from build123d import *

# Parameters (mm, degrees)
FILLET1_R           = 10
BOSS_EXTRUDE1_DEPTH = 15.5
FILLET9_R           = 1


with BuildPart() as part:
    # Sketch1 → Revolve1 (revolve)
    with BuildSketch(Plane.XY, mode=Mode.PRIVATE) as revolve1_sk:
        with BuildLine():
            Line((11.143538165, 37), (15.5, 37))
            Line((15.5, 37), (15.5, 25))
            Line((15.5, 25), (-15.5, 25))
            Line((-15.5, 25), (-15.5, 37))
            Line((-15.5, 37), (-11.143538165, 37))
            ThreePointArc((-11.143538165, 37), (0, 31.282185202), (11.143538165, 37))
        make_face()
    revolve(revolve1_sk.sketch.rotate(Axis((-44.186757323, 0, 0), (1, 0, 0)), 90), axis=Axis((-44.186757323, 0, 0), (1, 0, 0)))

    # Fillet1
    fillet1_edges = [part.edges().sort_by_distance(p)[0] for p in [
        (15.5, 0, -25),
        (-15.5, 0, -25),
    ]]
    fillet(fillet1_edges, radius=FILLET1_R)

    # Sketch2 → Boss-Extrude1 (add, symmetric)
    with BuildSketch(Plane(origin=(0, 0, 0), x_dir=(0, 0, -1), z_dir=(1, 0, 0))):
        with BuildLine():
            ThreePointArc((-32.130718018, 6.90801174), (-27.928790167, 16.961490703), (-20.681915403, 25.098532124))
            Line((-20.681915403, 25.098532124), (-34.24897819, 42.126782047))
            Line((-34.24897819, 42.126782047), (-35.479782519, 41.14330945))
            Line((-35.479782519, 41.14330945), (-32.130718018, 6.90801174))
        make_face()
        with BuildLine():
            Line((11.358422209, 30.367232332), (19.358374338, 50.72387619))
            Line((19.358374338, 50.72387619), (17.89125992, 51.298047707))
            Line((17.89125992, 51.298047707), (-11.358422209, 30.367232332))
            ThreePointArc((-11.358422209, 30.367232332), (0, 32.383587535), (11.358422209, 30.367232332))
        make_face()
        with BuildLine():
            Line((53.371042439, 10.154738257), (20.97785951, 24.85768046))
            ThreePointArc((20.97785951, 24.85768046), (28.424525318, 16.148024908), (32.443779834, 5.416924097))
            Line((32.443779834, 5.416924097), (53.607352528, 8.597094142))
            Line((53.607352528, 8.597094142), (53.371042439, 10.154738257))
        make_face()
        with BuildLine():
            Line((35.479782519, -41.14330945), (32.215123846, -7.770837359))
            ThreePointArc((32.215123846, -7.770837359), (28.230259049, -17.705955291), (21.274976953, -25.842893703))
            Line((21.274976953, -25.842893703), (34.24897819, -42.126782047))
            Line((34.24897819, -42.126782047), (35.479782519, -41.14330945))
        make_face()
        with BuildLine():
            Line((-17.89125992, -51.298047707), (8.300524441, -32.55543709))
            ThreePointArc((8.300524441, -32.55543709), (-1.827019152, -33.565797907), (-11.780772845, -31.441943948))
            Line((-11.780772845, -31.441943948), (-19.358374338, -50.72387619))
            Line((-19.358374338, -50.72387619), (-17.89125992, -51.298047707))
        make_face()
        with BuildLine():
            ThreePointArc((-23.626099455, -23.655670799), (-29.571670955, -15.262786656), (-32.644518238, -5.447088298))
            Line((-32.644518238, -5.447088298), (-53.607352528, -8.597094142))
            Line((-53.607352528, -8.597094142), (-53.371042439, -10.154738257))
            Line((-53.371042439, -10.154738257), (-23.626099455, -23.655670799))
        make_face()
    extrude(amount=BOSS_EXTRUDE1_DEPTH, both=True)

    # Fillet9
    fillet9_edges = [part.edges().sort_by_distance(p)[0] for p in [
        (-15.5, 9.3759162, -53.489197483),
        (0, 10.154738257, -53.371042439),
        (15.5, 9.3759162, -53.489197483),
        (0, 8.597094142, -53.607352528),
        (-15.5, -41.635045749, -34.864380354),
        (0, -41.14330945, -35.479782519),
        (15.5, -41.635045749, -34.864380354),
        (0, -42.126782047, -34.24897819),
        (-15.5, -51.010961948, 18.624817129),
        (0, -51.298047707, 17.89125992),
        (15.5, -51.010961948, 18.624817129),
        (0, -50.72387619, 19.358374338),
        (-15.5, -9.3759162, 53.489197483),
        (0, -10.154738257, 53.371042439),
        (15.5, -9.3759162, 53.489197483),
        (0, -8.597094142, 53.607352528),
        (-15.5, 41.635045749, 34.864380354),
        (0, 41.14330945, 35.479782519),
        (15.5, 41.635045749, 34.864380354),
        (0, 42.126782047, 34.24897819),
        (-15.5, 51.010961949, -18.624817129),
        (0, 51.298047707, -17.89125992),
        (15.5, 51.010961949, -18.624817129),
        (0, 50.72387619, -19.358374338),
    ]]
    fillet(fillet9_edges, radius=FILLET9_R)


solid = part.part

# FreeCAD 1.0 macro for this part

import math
import FreeCAD as App
import Part
import Sketcher
Q = App.Units.Quantity


def edges_at(feature, points):
    """Names of the edges that pass closest to the given points."""
    edges = feature.Shape.Edges
    near = lambda p: min(range(len(edges)), key=lambda i: edges[i].distToShape(Part.Vertex(*p))[0])
    return sorted({f"Edge{near(p) + 1}" for p in points})

doc = App.newDocument("Part")
params = doc.addObject("Spreadsheet::Sheet", "Params")
for row, (alias, value) in enumerate([
    ("sketch1_width", "31 mm"),
    ("sketch1_height", "12 mm"),
    ("revolution_angle", "360 deg"),
    ("fillet_radius", "10 mm"),
    ("sketch2_radius", "33 mm"),
    ("sketch2_radius2", "33 mm"),
    ("sketch2_radius3", "33 mm"),
    ("sketch2_radius4", "33 mm"),
    ("sketch2_radius5", "33 mm"),
    ("pad1_length", "31 mm"),
    ("fillet2_radius", "1 mm"),
], start=1):
    params.set(f"A{row}", alias)
    params.set(f"B{row}", "=" + value)
    params.setAlias(f"B{row}", alias)

body = doc.addObject("PartDesign::Body", "Body")

sketch1 = body.newObject("Sketcher::SketchObject", "Sketch")
sketch1.AttachmentSupport = (doc.getObject("XY_Plane"), [""])
sketch1.MapMode = "FlatFace"
sketch1.addGeometry([
    Part.LineSegment(App.Vector(15.5, 37, 0), App.Vector(11.1, 37, 0)),
    Part.ArcOfCircle(Part.Circle(App.Vector(0, 45, 0), App.Vector(0, 0, 1), 13.7), math.radians(-144), math.radians(-36)),
    Part.LineSegment(App.Vector(-11.1, 37, 0), App.Vector(-15.5, 37, 0)),
    Part.LineSegment(App.Vector(-15.5, 37, 0), App.Vector(-15.5, 25, 0)),
    Part.LineSegment(App.Vector(-15.5, 25, 0), App.Vector(15.5, 25, 0)),
    Part.LineSegment(App.Vector(15.5, 25, 0), App.Vector(15.5, 37, 0)),
], False)
sketch1.addConstraint([
    Sketcher.Constraint("Coincident", 0, 2, 1, 2),
    Sketcher.Constraint("Coincident", 1, 1, 2, 1),
    Sketcher.Constraint("Coincident", 2, 2, 3, 1),
    Sketcher.Constraint("Coincident", 3, 2, 4, 1),
    Sketcher.Constraint("Coincident", 4, 2, 5, 1),
    Sketcher.Constraint("Coincident", 5, 2, 0, 1),
    Sketcher.Constraint("Horizontal", 0),
    Sketcher.Constraint("Horizontal", 2),
    Sketcher.Constraint("Vertical", 3),
    Sketcher.Constraint("Horizontal", 4),
    Sketcher.Constraint("Vertical", 5),
    Sketcher.Constraint("Symmetric", 0, 2, 1, 1, -2),
    Sketcher.Constraint("Equal", 0, 2),
    Sketcher.Constraint("DistanceX", 4, 1, 4, 2, Q("31 mm")),
    Sketcher.Constraint("DistanceY", 3, 2, 3, 1, Q("12 mm")),
    Sketcher.Constraint("DistanceY", -1, 1, 1, 3, Q("45 mm")),
    Sketcher.Constraint("DistanceY", -1, 1, 0, 2, Q("37 mm")),
    Sketcher.Constraint("Radius", 1, Q("13.717815 mm")),
])
sketch1.setExpression("Constraints[13]", "Params.sketch1_width")
sketch1.setExpression("Constraints[14]", "Params.sketch1_height")
revolution = body.newObject("PartDesign::Revolution", "Revolution")
revolution.Profile = sketch1
revolution.ReferenceAxis = (sketch1, ["H_Axis"])
revolution.setExpression("Angle", "Params.revolution_angle")
doc.recompute()

fillet = body.newObject("PartDesign::Fillet", "Fillet")
fillet.Base = (revolution, edges_at(revolution, [(15.5, 0, -25), (-15.5, 0, -25)]))
fillet.setExpression("Radius", "Params.fillet_radius")

sketch2 = body.newObject("Sketcher::SketchObject", "Sketch001")
sketch2.AttachmentSupport = (doc.getObject("YZ_Plane"), [""])
sketch2.MapMode = "FlatFace"
sketch2.addGeometry([
    Part.ArcOfCircle(Part.Circle(App.Vector(-0.616412, 0, 0), App.Vector(0, 0, 1), 33), math.radians(38.808889), math.radians(76.819892)),
    Part.LineSegment(App.Vector(25.098532, 20.681915, 0), App.Vector(42.126782, 34.248978, 0)),
    Part.LineSegment(App.Vector(42.126782, 34.248978, 0), App.Vector(41.143309, 35.479783, 0)),
    Part.LineSegment(App.Vector(41.143309, 35.479783, 0), App.Vector(6.908012, 32.130718, 0)),
    Part.LineSegment(App.Vector(30.367232, -11.358422, 0), App.Vector(50.723876, -19.358374, 0)),
    Part.LineSegment(App.Vector(50.723876, -19.358374, 0), App.Vector(51.298048, -17.89126, 0)),
    Part.LineSegment(App.Vector(51.298048, -17.89126, 0), App.Vector(30.367232, 11.358422, 0)),
    Part.ArcOfCircle(Part.Circle(App.Vector(-0.616412, 0, 0), App.Vector(0, 0, 1), 33), math.radians(-20.13264), math.radians(20.13264)),
    Part.LineSegment(App.Vector(10.154738, -53.371042, 0), App.Vector(24.85768, -20.97786, 0)),
    Part.ArcOfCircle(Part.Circle(App.Vector(-0.616412, 0, 0), App.Vector(0, 0, 1), 33), math.radians(-79.465451), math.radians(-39.471381)),
    Part.LineSegment(App.Vector(5.416924, -32.44378, 0), App.Vector(8.597094, -53.607353, 0)),
    Part.LineSegment(App.Vector(8.597094, -53.607353, 0), App.Vector(10.154738, -53.371042, 0)),
    Part.LineSegment(App.Vector(-41.143309, -35.479783, 0), App.Vector(-7.770837, -32.215124, 0)),
    Part.ArcOfCircle(Part.Circle(App.Vector(-0.616412, 0, 0), App.Vector(0, 0, 1), 33), math.radians(-139.857093), math.radians(-102.521195)),
    Part.LineSegment(App.Vector(-25.842894, -21.274977, 0), App.Vector(-42.126782, -34.248978, 0)),
    Part.LineSegment(App.Vector(-42.126782, -34.248978, 0), App.Vector(-41.143309, -35.479783, 0)),
    Part.LineSegment(App.Vector(-51.298048, 17.89126, 0), App.Vector(-32.555437, -8.300524, 0)),
    Part.ArcOfCircle(Part.Circle(App.Vector(-0.616412, 0, 0), App.Vector(0, 0, 1), 33), math.radians(159.084353), math.radians(194.56813)),
    Part.LineSegment(App.Vector(-31.441944, 11.780773, 0), App.Vector(-50.723876, 19.358374, 0)),
    Part.LineSegment(App.Vector(-50.723876, 19.358374, 0), App.Vector(-51.298048, 17.89126, 0)),
    Part.ArcOfCircle(Part.Circle(App.Vector(-0.616412, 0, 0), App.Vector(0, 0, 1), 33), math.radians(98.417439), math.radians(134.279514)),
    Part.LineSegment(App.Vector(-5.447088, 32.644518, 0), App.Vector(-8.597094, 53.607353, 0)),
    Part.LineSegment(App.Vector(-8.597094, 53.607353, 0), App.Vector(-10.154738, 53.371042, 0)),
    Part.LineSegment(App.Vector(-10.154738, 53.371042, 0), App.Vector(-23.655671, 23.626099, 0)),
], False)
sketch2.addConstraint([
    Sketcher.Constraint("Coincident", 0, 1, 1, 1),
    Sketcher.Constraint("Coincident", 1, 2, 2, 1),
    Sketcher.Constraint("Coincident", 2, 2, 3, 1),
    Sketcher.Constraint("Coincident", 3, 2, 0, 2),
    Sketcher.Constraint("Coincident", 4, 2, 5, 1),
    Sketcher.Constraint("Coincident", 5, 2, 6, 1),
    Sketcher.Constraint("Coincident", 6, 2, 7, 2),
    Sketcher.Constraint("Coincident", 7, 1, 4, 1),
    Sketcher.Constraint("Coincident", 8, 2, 9, 2),
    Sketcher.Constraint("Coincident", 9, 1, 10, 1),
    Sketcher.Constraint("Coincident", 10, 2, 11, 1),
    Sketcher.Constraint("Coincident", 11, 2, 8, 1),
    Sketcher.Constraint("Coincident", 12, 2, 13, 2),
    Sketcher.Constraint("Coincident", 13, 1, 14, 1),
    Sketcher.Constraint("Coincident", 14, 2, 15, 1),
    Sketcher.Constraint("Coincident", 15, 2, 12, 1),
    Sketcher.Constraint("Coincident", 16, 2, 17, 2),
    Sketcher.Constraint("Coincident", 17, 1, 18, 1),
    Sketcher.Constraint("Coincident", 18, 2, 19, 1),
    Sketcher.Constraint("Coincident", 19, 2, 16, 1),
    Sketcher.Constraint("Coincident", 20, 1, 21, 1),
    Sketcher.Constraint("Coincident", 21, 2, 22, 1),
    Sketcher.Constraint("Coincident", 22, 2, 23, 1),
    Sketcher.Constraint("Coincident", 23, 2, 20, 2),
    Sketcher.Constraint("Coincident", 7, 3, 0, 3),
    Sketcher.Constraint("Coincident", 9, 3, 0, 3),
    Sketcher.Constraint("Coincident", 13, 3, 0, 3),
    Sketcher.Constraint("Coincident", 17, 3, 0, 3),
    Sketcher.Constraint("Coincident", 20, 3, 0, 3),
    Sketcher.Constraint("PointOnObject", 0, 3, -1),
    Sketcher.Constraint("Radius", 0, Q("33 mm")),
    Sketcher.Constraint("Radius", 7, Q("33 mm")),
    Sketcher.Constraint("Radius", 9, Q("33 mm")),
    Sketcher.Constraint("Radius", 13, Q("33 mm")),
    Sketcher.Constraint("Radius", 17, Q("33 mm")),
    Sketcher.Constraint("Radius", 20, Q("33 mm")),
    Sketcher.Constraint("DistanceY", 14, 2, 13, 1, Q("12.974001 mm")),
    Sketcher.Constraint("DistanceY", -1, 1, 23, 2, Q("23.626099 mm")),
    Sketcher.Constraint("DistanceX", 0, 1, 6, 2, Q("5.2687 mm")),
    Sketcher.Constraint("DistanceX", 0, 1, 7, 1, Q("5.2687 mm")),
    Sketcher.Constraint("DistanceY", 8, 2, 5, 2, Q("3.0866 mm")),
    Sketcher.Constraint("DistanceY", 14, 2, 9, 1, Q("1.805198 mm")),
    Sketcher.Constraint("DistanceY", 17, 1, 18, 2, Q("7.577601 mm")),
    Sketcher.Constraint("DistanceY", 16, 2, 18, 2, Q("27.658899 mm")),
    Sketcher.Constraint("DistanceX", 20, 1, 3, 2, Q("12.3551 mm")),
    Sketcher.Constraint("DistanceY", 3, 2, 20, 1, Q("0.5138 mm")),
    Sketcher.Constraint("Distance", 1, Q("21.772149 mm")),
    Sketcher.Constraint("Distance", 3, Q("34.398719 mm")),
    Sketcher.Constraint("Distance", 4, Q("21.872178 mm")),
    Sketcher.Constraint("Distance", 6, Q("35.967248 mm")),
    Sketcher.Constraint("Distance", 23, Q("32.665529 mm")),
    Sketcher.Constraint("DistanceY", -1, 1, 1, 2, Q("34.248978 mm")),
    Sketcher.Constraint("DistanceX", -1, 1, 2, 2, Q("41.143309 mm")),
    Sketcher.Constraint("DistanceX", -1, 1, 3, 2, Q("6.908012 mm")),
    Sketcher.Constraint("DistanceY", 5, 2, -1, 1, Q("17.89126 mm")),
    Sketcher.Constraint("DistanceY", 9, 1, -1, 1, Q("32.44378 mm")),
    Sketcher.Constraint("DistanceX", -1, 1, 11, 2, Q("10.154738 mm")),
    Sketcher.Constraint("DistanceX", 15, 2, -1, 1, Q("41.143309 mm")),
    Sketcher.Constraint("DistanceY", -1, 1, 19, 2, Q("17.89126 mm")),
    Sketcher.Constraint("DistanceX", 22, 2, -1, 1, Q("10.154738 mm")),
    Sketcher.Constraint("DistanceX", 0, 1, 1, 2, Q("17.02825 mm")),
    Sketcher.Constraint("DistanceY", 4, 2, 0, 1, Q("40.04029 mm")),
    Sketcher.Constraint("DistanceX", 9, 1, 10, 2, Q("3.18017 mm")),
    Sketcher.Constraint("DistanceY", 10, 2, 7, 1, Q("42.24893 mm")),
    Sketcher.Constraint("DistanceY", 10, 2, 11, 2, Q("0.23631 mm")),
    Sketcher.Constraint("DistanceX", 12, 2, 9, 1, Q("13.187761 mm")),
    Sketcher.Constraint("DistanceX", 14, 2, 13, 1, Q("16.283888 mm")),
    Sketcher.Constraint("DistanceY", 15, 2, 12, 2, Q("3.264659 mm")),
    Sketcher.Constraint("DistanceY", 15, 2, 16, 2, Q("27.179258 mm")),
    Sketcher.Constraint("DistanceX", 18, 2, 16, 2, Q("18.168439 mm")),
    Sketcher.Constraint("DistanceX", 19, 2, 18, 2, Q("0.574172 mm")),
    Sketcher.Constraint("DistanceX", 17, 1, 21, 2, Q("22.84485 mm")),
    Sketcher.Constraint("DistanceY", 17, 1, 21, 2, Q("41.82658 mm")),
])
sketch2.setExpression("Constraints[30]", "Params.sketch2_radius")
sketch2.setExpression("Constraints[31]", "Params.sketch2_radius2")
sketch2.setExpression("Constraints[32]", "Params.sketch2_radius3")
sketch2.setExpression("Constraints[33]", "Params.sketch2_radius4")
sketch2.setExpression("Constraints[34]", "Params.sketch2_radius5")
pad1 = body.newObject("PartDesign::Pad", "Pad")
pad1.Profile = sketch2
pad1.setExpression("Length", "Params.pad1_length")
pad1.Midplane = True
doc.recompute()

fillet2 = body.newObject("PartDesign::Fillet", "Fillet001")
fillet2.Base = (pad1, edges_at(pad1, [
    (-15.5, 9.376, -53.489),
    (0, 10.155, -53.371),
    (15.5, 9.376, -53.489),
    (0, 8.597, -53.607),
    (-15.5, -41.635, -34.864),
    (0, -41.143, -35.48),
    (15.5, -41.635, -34.864),
    (0, -42.127, -34.249),
    (-15.5, -51.011, 18.625),
    (0, -51.298, 17.891),
    (15.5, -51.011, 18.625),
    (0, -50.724, 19.358),
    (-15.5, -9.376, 53.489),
    (0, -10.155, 53.371),
    (15.5, -9.376, 53.489),
    (0, -8.597, 53.607),
    (-15.5, 41.635, 34.864),
    (0, 41.143, 35.48),
    (15.5, 41.635, 34.864),
    (0, 42.127, 34.249),
    (-15.5, 51.011, -18.625),
    (0, 51.298, -17.891),
    (15.5, 51.011, -18.625),
    (0, 50.724, -19.358),
]))
fillet2.setExpression("Radius", "Params.fillet2_radius")

doc.recompute()
